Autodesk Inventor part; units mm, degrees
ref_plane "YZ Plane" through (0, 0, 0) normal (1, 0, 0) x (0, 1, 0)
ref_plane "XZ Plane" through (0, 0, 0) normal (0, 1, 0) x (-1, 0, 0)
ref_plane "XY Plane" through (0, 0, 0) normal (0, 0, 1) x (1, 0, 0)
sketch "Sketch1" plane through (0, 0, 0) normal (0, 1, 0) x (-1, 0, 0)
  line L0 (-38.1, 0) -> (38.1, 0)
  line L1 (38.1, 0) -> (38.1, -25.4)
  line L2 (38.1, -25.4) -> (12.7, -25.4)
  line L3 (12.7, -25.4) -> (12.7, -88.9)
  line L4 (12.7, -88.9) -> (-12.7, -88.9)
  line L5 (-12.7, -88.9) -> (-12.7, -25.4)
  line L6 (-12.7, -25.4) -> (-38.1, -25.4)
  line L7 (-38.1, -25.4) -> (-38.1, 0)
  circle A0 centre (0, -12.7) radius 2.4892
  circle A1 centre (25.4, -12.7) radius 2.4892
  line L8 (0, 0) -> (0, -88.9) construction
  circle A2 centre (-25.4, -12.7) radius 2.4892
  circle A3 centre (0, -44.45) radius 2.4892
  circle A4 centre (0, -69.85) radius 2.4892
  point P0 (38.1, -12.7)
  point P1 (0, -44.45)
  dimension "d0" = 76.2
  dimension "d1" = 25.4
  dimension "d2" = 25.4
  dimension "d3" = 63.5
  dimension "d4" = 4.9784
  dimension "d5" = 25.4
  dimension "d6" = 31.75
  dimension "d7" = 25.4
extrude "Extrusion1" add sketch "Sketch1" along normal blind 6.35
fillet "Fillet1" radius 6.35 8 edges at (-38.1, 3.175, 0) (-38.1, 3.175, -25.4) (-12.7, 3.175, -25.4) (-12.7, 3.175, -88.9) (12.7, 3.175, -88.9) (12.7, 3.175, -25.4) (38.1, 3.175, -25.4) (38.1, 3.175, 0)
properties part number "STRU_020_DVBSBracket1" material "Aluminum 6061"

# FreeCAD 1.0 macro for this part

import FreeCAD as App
import Part
import Sketcher

V = App.Vector
Q = App.Units.Quantity


def edges_at(feature, points):
    """Names of the edges that pass closest to the given points."""
    edges = feature.Shape.Edges
    near = lambda p: min(range(len(edges)), key=lambda i: edges[i].distToShape(Part.Vertex(*p))[0])
    return sorted({f"Edge{near(p) + 1}" for p in points})


def add_polygon(sketch, points):
    """Adds a closed chain of lines whose ends are joined by coincident constraints."""
    first, n = sketch.GeometryCount, len(points)
    for a, b in zip(points, points[1:] + points[:1]):
        sketch.addGeometry(Part.LineSegment(App.Vector(*a, 0), App.Vector(*b, 0)), False)
    for i in range(n):
        sketch.addConstraint(Sketcher.Constraint("Coincident", first + i, 2, first + (i + 1) % n, 1))

doc = App.newDocument("Part")
body = doc.addObject("PartDesign::Body", "Body")

# Sketch on XZ plane
sketch1 = body.newObject("Sketcher::SketchObject", "Sketch")
sketch1.AttachmentSupport = (doc.getObject("XZ_Plane"), [""])
sketch1.MapMode = "FlatFace"
add_polygon(sketch1, [(-38.1, 0), (38.1, 0), (38.1, -25.4), (12.7, -25.4), (12.7, -88.9), (-12.7, -88.9), (-12.7, -25.4), (-38.1, -25.4)])  # lines 0-7
sketch1.addGeometry(Part.Circle(V(0, -69.8, 0), V(0, 0, 1), 2.5), False)  # 8
sketch1.addGeometry(Part.Circle(V(25.4, -12.7, 0), V(0, 0, 1), 2.5), False)  # 9
sketch1.addGeometry(Part.Circle(V(0, -44.5, 0), V(0, 0, 1), 2.5), False)  # 10
sketch1.addGeometry(Part.Circle(V(0, -12.7, 0), V(0, 0, 1), 2.5), False)  # 11
sketch1.addGeometry(Part.Circle(V(-25.4, -12.7, 0), V(0, 0, 1), 2.5), False)  # 12
sketch1.addConstraint(Sketcher.Constraint("Horizontal", 0))
sketch1.addConstraint(Sketcher.Constraint("Vertical", 1))
sketch1.addConstraint(Sketcher.Constraint("Horizontal", 2))
sketch1.addConstraint(Sketcher.Constraint("Vertical", 3))
sketch1.addConstraint(Sketcher.Constraint("Horizontal", 4))
sketch1.addConstraint(Sketcher.Constraint("Vertical", 5))
sketch1.addConstraint(Sketcher.Constraint("Horizontal", 6))
sketch1.addConstraint(Sketcher.Constraint("Vertical", 7))
sketch1.addConstraint(Sketcher.Constraint("Equal", 8, 9))
sketch1.addConstraint(Sketcher.Constraint("Equal", 9, 10))
sketch1.addConstraint(Sketcher.Constraint("Equal", 10, 11))
sketch1.addConstraint(Sketcher.Constraint("Equal", 11, 12))
sketch1.addConstraint(Sketcher.Constraint("Symmetric", 0, 2, 7, 2, -1, 1))
sketch1.addConstraint(Sketcher.Constraint("Symmetric", 9, 3, 12, 3, -2))
sketch1.addConstraint(Sketcher.Constraint("Symmetric", 2, 2, 5, 2, -2))
sketch1.addConstraint(Sketcher.Constraint("PointOnObject", 8, 3, -2))
sketch1.addConstraint(Sketcher.Constraint("PointOnObject", 10, 3, -2))
sketch1.addConstraint(Sketcher.Constraint("PointOnObject", 11, 3, -2))
sketch1.addConstraint(Sketcher.Constraint("Horizontal", 9, 3, 11, 3))
sketch1.addConstraint(Sketcher.Constraint("Equal", 2, 4))
sketch1.addConstraint(Sketcher.Constraint("Equal", 6, 1))
sketch1.addConstraint(Sketcher.Constraint("DistanceX", 0, 1, 0, 2, Q("3 in")))
sketch1.addConstraint(Sketcher.Constraint("Diameter", 8, Q("0.196 in")))
sketch1.addConstraint(Sketcher.Constraint("DistanceY", 3, 2, 3, 1, Q("2.5 in")))
sketch1.addConstraint(Sketcher.Constraint("DistanceX", -1, 1, 9, 3, Q("1 in")))
sketch1.addConstraint(Sketcher.Constraint("DistanceY", 8, 3, 10, 3, Q("1 in")))
sketch1.addConstraint(Sketcher.Constraint("DistanceY", 3, 2, 9, 3, Q("3 in")))
sketch1.addConstraint(Sketcher.Constraint("DistanceY", 10, 3, 9, 3, Q("1.25 in")))
pad1 = body.newObject("PartDesign::Pad", "Pad")
pad1.Profile = sketch1
pad1.Length = Q("0.25 in")
pad1.Reversed = True
doc.recompute()

fillet = body.newObject("PartDesign::Fillet", "Fillet")
fillet.Base = (pad1, edges_at(pad1, [
    (-38.1, 3.175, 0),
    (-38.1, 3.175, -25.4),
    (-12.7, 3.175, -25.4),
    (-12.7, 3.175, -88.9),
    (12.7, 3.175, -88.9),
    (12.7, 3.175, -25.4),
    (38.1, 3.175, -25.4),
    (38.1, 3.175, 0),
]))
fillet.Radius = Q("0.25 in")

doc.recompute()
